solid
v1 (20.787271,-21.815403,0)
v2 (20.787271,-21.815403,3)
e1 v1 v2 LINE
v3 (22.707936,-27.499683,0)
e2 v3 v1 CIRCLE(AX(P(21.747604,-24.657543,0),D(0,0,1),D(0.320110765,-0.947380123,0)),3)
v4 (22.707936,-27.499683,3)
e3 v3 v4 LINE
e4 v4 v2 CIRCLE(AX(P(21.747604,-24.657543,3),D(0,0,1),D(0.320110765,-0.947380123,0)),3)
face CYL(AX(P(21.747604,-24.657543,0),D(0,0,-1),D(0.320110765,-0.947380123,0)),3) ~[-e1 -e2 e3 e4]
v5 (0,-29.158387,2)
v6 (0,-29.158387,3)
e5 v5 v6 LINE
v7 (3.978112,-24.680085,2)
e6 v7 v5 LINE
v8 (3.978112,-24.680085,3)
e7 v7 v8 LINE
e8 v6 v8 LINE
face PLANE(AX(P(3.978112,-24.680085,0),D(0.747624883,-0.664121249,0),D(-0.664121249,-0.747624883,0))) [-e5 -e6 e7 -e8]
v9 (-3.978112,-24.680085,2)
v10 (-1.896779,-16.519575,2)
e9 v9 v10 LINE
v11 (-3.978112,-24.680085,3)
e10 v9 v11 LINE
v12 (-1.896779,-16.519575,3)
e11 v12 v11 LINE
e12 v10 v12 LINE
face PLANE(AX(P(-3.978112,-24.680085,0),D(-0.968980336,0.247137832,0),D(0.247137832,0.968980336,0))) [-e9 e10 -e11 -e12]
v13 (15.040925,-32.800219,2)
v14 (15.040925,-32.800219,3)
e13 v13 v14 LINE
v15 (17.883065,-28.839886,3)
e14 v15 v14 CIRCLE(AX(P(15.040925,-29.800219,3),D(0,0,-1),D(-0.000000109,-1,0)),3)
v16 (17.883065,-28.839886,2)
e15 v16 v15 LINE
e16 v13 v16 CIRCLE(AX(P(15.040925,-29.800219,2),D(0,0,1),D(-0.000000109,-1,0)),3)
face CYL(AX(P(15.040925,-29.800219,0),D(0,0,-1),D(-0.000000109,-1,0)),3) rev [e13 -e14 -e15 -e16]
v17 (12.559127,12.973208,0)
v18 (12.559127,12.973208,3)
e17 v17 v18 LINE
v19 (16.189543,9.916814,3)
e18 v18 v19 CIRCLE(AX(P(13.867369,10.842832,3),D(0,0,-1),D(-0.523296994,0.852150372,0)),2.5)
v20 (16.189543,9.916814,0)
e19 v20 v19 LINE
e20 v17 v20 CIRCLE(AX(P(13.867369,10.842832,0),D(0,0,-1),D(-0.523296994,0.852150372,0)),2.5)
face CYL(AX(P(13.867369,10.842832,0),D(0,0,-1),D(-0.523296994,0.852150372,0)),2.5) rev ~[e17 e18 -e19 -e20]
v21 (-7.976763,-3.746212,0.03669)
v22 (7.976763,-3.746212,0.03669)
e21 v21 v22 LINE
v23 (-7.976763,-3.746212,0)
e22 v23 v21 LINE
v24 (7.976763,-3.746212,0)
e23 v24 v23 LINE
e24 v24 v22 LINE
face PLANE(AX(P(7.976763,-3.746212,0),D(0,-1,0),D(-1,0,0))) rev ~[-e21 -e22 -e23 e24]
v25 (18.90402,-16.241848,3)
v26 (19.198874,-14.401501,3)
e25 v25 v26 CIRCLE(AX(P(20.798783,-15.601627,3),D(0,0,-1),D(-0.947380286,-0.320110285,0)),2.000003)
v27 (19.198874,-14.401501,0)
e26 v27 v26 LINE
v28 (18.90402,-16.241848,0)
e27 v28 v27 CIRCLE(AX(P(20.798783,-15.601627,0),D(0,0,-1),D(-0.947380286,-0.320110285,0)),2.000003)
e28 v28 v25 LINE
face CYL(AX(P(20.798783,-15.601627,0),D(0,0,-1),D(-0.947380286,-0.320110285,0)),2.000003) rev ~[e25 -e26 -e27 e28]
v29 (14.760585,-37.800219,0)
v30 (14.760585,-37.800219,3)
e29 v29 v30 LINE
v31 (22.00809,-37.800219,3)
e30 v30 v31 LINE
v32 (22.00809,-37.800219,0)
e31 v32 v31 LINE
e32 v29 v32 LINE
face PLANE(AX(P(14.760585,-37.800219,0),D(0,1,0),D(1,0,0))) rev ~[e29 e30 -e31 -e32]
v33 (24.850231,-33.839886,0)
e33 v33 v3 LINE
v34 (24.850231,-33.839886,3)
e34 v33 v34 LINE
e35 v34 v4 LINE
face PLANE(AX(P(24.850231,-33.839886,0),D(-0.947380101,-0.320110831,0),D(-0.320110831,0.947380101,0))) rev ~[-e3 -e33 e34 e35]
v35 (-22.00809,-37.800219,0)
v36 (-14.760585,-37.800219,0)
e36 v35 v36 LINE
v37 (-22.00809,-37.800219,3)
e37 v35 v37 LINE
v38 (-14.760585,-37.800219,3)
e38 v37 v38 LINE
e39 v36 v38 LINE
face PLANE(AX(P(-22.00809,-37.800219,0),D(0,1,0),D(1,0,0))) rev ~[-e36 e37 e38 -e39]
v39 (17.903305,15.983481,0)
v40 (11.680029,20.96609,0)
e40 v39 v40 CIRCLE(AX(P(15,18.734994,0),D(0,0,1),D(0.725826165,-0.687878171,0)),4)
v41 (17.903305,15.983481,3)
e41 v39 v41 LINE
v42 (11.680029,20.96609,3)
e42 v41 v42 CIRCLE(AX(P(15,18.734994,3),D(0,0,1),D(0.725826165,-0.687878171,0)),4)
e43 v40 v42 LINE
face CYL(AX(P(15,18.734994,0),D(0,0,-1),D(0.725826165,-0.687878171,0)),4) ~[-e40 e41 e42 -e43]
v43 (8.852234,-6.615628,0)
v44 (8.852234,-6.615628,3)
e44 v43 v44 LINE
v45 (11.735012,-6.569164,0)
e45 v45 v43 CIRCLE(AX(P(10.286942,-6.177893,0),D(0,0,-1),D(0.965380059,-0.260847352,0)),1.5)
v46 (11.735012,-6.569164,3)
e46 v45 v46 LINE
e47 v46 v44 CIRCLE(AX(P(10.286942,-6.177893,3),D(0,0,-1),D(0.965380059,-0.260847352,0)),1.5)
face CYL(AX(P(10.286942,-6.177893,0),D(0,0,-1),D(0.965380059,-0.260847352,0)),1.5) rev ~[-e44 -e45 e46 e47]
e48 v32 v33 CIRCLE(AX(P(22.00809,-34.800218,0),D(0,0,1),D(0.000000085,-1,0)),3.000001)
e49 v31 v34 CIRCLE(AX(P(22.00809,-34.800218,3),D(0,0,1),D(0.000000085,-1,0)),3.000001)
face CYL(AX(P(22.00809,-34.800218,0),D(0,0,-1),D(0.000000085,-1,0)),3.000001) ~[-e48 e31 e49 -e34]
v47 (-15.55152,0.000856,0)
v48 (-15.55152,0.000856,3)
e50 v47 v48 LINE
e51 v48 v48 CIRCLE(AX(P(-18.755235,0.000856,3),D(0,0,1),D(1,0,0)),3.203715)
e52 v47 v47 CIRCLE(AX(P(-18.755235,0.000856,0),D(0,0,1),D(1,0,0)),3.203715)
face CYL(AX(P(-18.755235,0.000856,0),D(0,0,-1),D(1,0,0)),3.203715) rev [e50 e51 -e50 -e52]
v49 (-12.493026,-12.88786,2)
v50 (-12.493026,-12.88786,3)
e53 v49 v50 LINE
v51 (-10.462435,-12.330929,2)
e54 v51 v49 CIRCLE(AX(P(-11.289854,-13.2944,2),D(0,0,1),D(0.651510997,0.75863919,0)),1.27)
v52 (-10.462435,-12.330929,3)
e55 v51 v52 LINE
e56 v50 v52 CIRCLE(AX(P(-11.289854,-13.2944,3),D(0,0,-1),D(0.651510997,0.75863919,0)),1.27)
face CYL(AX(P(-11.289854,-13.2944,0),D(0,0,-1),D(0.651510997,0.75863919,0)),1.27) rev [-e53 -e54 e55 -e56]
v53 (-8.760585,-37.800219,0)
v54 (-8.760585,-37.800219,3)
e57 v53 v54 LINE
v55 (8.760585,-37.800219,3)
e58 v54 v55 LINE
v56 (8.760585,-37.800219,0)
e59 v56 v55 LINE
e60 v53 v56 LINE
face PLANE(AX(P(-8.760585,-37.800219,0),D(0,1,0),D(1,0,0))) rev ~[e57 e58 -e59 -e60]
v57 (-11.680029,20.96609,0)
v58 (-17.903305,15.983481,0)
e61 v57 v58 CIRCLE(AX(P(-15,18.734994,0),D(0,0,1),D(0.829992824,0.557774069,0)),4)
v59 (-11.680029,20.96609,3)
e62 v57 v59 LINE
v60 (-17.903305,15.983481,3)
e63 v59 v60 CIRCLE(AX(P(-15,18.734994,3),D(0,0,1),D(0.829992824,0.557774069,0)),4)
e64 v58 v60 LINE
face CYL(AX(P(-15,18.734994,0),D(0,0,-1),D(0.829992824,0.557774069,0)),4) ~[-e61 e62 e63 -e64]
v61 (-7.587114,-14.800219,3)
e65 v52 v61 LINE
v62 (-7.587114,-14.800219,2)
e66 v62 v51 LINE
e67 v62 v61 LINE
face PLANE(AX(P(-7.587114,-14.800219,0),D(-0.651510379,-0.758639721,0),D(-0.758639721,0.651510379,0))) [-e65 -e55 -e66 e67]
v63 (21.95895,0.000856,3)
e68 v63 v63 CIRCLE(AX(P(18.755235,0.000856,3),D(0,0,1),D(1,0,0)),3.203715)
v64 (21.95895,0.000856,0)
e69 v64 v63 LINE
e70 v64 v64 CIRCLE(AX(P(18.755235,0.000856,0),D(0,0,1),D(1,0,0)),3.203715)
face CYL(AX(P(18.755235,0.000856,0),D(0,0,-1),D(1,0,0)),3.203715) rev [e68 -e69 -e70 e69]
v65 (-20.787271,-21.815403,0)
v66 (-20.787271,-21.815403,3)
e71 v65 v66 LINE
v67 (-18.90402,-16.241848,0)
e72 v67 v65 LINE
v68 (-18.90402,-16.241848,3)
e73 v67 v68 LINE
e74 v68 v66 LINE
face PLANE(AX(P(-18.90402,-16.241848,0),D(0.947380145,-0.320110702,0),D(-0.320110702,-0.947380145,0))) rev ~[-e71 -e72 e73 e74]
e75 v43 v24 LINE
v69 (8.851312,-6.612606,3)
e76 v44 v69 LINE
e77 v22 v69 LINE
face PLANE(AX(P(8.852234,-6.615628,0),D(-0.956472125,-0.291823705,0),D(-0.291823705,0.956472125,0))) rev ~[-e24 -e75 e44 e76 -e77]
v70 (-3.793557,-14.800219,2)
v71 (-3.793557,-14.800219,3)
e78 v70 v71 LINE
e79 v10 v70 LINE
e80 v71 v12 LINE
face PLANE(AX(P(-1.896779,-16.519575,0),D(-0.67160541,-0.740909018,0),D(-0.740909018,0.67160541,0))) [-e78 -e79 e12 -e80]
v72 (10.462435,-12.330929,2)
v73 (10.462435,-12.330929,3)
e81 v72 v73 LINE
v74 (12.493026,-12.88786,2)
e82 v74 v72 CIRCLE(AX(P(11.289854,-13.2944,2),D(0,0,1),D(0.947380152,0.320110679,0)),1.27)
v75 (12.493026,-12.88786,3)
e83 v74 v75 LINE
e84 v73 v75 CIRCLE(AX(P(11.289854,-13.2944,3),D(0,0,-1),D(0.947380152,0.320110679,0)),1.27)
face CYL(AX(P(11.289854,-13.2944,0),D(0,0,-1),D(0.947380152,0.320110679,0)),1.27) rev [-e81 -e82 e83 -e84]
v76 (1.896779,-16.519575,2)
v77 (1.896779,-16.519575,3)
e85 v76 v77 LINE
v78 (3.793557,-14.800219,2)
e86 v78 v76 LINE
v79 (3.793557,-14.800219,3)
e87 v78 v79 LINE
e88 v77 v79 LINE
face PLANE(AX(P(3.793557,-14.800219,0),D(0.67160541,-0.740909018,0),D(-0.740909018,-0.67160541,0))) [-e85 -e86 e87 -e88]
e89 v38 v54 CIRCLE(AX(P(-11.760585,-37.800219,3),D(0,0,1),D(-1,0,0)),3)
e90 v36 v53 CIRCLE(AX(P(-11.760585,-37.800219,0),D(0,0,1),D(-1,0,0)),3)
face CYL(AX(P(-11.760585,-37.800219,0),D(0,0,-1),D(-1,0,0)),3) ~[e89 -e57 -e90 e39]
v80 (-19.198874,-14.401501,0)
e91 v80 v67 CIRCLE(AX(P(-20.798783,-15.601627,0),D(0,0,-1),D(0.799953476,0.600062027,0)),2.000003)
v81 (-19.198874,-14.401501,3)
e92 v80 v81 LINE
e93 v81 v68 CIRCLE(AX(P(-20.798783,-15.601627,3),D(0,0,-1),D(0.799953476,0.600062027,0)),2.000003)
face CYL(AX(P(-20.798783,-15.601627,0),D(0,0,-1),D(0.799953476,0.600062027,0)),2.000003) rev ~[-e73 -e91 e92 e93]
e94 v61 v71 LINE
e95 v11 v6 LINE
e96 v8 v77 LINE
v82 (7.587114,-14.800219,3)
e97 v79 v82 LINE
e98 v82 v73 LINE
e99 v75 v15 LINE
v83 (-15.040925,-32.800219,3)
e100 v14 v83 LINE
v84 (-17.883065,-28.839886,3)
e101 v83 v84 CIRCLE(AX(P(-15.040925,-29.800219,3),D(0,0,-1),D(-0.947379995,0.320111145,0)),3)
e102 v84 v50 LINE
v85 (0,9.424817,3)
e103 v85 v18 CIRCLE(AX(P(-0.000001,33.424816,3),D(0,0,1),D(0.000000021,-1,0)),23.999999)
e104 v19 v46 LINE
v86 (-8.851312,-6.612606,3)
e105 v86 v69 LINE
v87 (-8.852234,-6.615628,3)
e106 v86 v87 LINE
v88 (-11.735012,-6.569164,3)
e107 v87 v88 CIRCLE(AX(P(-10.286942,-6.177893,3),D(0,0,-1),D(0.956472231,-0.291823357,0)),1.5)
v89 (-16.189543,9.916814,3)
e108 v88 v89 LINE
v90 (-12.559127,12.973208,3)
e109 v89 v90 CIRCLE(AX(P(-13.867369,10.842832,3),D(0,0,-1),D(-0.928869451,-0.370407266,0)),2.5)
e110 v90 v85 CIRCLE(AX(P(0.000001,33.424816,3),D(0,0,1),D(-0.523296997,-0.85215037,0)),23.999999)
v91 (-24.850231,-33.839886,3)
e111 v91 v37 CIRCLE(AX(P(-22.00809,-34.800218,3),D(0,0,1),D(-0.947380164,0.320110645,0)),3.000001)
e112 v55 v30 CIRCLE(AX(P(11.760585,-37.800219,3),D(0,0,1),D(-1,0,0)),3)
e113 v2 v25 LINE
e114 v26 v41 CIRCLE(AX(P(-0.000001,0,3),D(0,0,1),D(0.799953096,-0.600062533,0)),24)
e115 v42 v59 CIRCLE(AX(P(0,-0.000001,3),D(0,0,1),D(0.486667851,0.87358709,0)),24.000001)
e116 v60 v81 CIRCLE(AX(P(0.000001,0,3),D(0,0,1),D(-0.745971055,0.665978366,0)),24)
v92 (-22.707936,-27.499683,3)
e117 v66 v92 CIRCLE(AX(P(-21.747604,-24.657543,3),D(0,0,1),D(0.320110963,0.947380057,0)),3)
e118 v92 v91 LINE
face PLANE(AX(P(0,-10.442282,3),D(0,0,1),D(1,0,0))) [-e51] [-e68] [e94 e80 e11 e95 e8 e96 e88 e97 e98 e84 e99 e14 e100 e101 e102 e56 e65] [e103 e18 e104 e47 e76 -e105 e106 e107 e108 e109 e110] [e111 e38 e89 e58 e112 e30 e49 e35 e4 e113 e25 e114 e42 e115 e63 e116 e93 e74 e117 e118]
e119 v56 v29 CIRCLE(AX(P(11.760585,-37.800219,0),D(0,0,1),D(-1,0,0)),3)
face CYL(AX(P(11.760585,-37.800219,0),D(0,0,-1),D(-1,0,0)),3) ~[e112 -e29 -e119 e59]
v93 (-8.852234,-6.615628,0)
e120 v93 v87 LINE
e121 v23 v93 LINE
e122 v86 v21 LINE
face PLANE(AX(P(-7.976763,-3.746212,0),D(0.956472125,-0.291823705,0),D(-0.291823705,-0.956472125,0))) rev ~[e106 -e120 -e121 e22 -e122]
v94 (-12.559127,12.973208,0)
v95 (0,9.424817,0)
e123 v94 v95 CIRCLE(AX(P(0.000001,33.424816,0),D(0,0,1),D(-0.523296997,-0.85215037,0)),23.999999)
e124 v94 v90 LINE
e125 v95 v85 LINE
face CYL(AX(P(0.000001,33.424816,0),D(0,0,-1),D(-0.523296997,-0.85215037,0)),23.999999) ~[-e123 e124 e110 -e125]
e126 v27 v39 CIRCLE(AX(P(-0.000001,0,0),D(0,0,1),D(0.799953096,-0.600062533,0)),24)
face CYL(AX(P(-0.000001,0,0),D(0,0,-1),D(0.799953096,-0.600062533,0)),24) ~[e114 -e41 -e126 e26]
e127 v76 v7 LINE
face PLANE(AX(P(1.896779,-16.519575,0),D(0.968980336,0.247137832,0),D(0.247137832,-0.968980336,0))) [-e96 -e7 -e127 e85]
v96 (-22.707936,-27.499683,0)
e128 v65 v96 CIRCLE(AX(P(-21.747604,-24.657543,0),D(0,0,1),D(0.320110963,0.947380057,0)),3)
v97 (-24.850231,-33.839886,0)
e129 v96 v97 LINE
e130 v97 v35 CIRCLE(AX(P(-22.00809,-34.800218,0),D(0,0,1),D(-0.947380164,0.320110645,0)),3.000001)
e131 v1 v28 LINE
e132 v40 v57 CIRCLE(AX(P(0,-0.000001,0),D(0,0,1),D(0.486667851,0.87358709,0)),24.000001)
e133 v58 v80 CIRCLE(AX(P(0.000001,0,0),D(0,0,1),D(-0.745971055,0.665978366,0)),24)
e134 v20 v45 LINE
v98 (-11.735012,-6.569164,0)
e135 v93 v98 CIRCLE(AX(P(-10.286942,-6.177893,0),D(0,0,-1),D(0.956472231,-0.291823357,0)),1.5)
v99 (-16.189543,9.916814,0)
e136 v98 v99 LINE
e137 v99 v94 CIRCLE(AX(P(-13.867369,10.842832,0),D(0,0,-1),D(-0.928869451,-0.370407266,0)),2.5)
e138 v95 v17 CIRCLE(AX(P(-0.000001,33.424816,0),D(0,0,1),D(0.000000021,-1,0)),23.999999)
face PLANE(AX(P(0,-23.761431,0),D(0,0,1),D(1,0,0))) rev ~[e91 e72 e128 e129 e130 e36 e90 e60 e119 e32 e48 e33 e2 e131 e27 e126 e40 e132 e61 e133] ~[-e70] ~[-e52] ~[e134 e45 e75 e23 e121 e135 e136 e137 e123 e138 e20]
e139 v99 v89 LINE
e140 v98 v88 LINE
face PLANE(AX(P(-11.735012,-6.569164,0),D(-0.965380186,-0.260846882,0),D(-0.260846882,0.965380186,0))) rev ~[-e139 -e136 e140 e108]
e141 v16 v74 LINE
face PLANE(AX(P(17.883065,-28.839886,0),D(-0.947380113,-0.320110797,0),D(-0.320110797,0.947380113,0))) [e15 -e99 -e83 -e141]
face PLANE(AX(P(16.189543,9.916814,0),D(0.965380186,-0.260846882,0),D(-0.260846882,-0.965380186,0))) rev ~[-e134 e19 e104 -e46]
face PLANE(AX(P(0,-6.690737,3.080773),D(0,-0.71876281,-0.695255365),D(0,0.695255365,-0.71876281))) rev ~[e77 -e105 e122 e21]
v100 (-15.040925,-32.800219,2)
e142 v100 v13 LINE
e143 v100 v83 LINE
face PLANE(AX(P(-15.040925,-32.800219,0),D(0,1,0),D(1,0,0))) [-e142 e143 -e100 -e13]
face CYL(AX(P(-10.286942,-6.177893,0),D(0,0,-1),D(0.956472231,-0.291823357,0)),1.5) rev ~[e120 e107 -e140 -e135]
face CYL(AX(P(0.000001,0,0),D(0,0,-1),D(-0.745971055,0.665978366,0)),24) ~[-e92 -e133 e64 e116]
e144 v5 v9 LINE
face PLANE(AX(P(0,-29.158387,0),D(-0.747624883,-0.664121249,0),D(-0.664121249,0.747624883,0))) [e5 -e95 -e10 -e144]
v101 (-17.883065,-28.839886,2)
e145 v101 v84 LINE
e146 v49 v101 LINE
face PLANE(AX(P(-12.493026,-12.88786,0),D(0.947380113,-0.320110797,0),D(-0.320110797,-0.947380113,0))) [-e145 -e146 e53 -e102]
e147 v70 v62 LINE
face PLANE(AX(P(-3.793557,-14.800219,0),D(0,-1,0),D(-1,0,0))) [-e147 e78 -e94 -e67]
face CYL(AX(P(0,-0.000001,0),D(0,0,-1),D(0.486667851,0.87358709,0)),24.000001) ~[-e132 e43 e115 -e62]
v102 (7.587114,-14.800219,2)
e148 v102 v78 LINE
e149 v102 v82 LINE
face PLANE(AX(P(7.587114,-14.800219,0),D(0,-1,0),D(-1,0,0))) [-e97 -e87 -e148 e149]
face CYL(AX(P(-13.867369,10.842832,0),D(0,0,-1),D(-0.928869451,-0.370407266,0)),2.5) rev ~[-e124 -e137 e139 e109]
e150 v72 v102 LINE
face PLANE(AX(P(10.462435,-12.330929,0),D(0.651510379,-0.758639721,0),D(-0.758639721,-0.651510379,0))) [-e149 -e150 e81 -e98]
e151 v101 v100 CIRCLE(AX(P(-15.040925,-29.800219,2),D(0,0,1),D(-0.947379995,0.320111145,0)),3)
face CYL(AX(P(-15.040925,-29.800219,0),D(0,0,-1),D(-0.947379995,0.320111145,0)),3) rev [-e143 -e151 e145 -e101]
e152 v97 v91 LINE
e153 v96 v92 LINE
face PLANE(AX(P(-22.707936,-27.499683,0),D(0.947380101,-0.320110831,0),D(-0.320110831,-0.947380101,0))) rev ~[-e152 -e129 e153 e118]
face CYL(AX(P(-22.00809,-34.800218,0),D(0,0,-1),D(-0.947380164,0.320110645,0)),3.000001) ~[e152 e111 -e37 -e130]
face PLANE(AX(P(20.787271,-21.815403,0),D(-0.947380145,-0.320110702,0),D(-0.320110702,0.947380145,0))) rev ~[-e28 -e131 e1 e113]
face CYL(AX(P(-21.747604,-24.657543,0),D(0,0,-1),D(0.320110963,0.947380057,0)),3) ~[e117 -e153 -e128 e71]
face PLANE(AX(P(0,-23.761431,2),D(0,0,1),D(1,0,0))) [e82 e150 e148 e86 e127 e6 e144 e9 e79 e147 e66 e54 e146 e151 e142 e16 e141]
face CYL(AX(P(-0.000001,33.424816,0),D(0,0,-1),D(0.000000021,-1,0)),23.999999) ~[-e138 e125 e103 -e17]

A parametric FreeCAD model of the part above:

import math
import FreeCAD as App
import Part
import Sketcher
from FreeCAD import Vector

doc = App.newDocument("Part")
body = doc.addObject("PartDesign::Body", "Body")

sketch1 = body.newObject("Sketcher::SketchObject", "Sketch")
sketch1.AttachmentSupport = (doc.getObject("XY_Plane"), [""])
sketch1.MapMode = "FlatFace"
sketch1.addGeometry(Part.ArcOfCircle(Part.Circle(Vector(-15, 18.7, 0), Vector(0, 0, 1), 4), math.radians(34), math.radians(223)), False)
sketch1.addGeometry(Part.ArcOfCircle(Part.Circle(Vector(0, 0, 0), Vector(0, 0, 1), 24), math.radians(138), math.radians(217)), False)
sketch1.addGeometry(Part.ArcOfCircle(Part.Circle(Vector(-20.8, -15.6, 0), Vector(0, 0, 1), 2), math.radians(-19), math.radians(37)), False)
sketch1.addGeometry(Part.LineSegment(Vector(-18.9, -16.2, 0), Vector(-20.8, -21.8, 0)), False)
sketch1.addGeometry(Part.ArcOfCircle(Part.Circle(Vector(-21.7, -24.7, 0), Vector(0, 0, 1), 3), math.radians(71), math.radians(251)), False)
sketch1.addGeometry(Part.LineSegment(Vector(-22.7, -27.5, 0), Vector(-24.9, -33.8, 0)), False)
sketch1.addGeometry(Part.ArcOfCircle(Part.Circle(Vector(-22, -34.8, 0), Vector(0, 0, 1), 3), math.radians(161), math.radians(270)), False)
sketch1.addGeometry(Part.LineSegment(Vector(-22, -37.8, 0), Vector(-14.8, -37.8, 0)), False)
sketch1.addGeometry(Part.ArcOfCircle(Part.Circle(Vector(-11.8, -37.8, 0), Vector(0, 0, 1), 3), math.radians(180), math.radians(360)), False)
sketch1.addGeometry(Part.LineSegment(Vector(-8.8, -37.8, 0), Vector(8.8, -37.8, 0)), False)
sketch1.addGeometry(Part.ArcOfCircle(Part.Circle(Vector(11.8, -37.8, 0), Vector(0, 0, 1), 3), math.radians(180), math.radians(360)), False)
sketch1.addGeometry(Part.LineSegment(Vector(14.8, -37.8, 0), Vector(22, -37.8, 0)), False)
sketch1.addGeometry(Part.ArcOfCircle(Part.Circle(Vector(22, -34.8, 0), Vector(0, 0, 1), 3), math.radians(-90), math.radians(19)), False)
sketch1.addGeometry(Part.LineSegment(Vector(24.9, -33.8, 0), Vector(22.7, -27.5, 0)), False)
sketch1.addGeometry(Part.ArcOfCircle(Part.Circle(Vector(21.7, -24.7, 0), Vector(0, 0, 1), 3), math.radians(-71), math.radians(109)), False)
sketch1.addGeometry(Part.LineSegment(Vector(20.8, -21.8, 0), Vector(18.9, -16.2, 0)), False)
sketch1.addGeometry(Part.ArcOfCircle(Part.Circle(Vector(20.8, -15.6, 0), Vector(0, 0, 1), 2), math.radians(143), math.radians(199)), False)
sketch1.addGeometry(Part.ArcOfCircle(Part.Circle(Vector(0, 0, 0), Vector(0, 0, 1), 24), math.radians(-37), math.radians(42)), False)
sketch1.addGeometry(Part.ArcOfCircle(Part.Circle(Vector(15, 18.7, 0), Vector(0, 0, 1), 4), math.radians(-43), math.radians(146)), False)
sketch1.addGeometry(Part.ArcOfCircle(Part.Circle(Vector(0, 0, 0), Vector(0, 0, 1), 24), math.radians(61), math.radians(119)), False)
sketch1.addGeometry(Part.Circle(Vector(-18.8, 0, 0), Vector(0, 0, 1), 3.2), False)
sketch1.addGeometry(Part.Circle(Vector(18.8, 0, 0), Vector(0, 0, 1), 3.2), False)
sketch1.addGeometry(Part.ArcOfCircle(Part.Circle(Vector(0, 33.4, 0), Vector(0, 0, 1), 24), math.radians(-122), math.radians(-90)), False)
sketch1.addGeometry(Part.ArcOfCircle(Part.Circle(Vector(0, 33.4, 0), Vector(0, 0, 1), 24), math.radians(-90), math.radians(-58)), False)
sketch1.addGeometry(Part.ArcOfCircle(Part.Circle(Vector(13.9, 10.8, 0), Vector(0, 0, 1), 2.5), math.radians(-22), math.radians(122)), False)
sketch1.addGeometry(Part.LineSegment(Vector(16.2, 9.9, 0), Vector(11.7, -6.6, 0)), False)
sketch1.addGeometry(Part.ArcOfCircle(Part.Circle(Vector(10.3, -6.2, 0), Vector(0, 0, 1), 1.5), math.radians(-163), math.radians(-15)), False)
sketch1.addGeometry(Part.LineSegment(Vector(8.9, -6.6, 0), Vector(8, -3.7, 0)), False)
sketch1.addGeometry(Part.LineSegment(Vector(8, -3.7, 0), Vector(-8, -3.7, 0)), False)
sketch1.addGeometry(Part.LineSegment(Vector(-8, -3.7, 0), Vector(-8.9, -6.6, 0)), False)
sketch1.addGeometry(Part.ArcOfCircle(Part.Circle(Vector(-10.3, -6.2, 0), Vector(0, 0, 1), 1.5), math.radians(-165), math.radians(-17)), False)
sketch1.addGeometry(Part.LineSegment(Vector(-11.7, -6.6, 0), Vector(-16.2, 9.9, 0)), False)
sketch1.addGeometry(Part.ArcOfCircle(Part.Circle(Vector(-13.9, 10.8, 0), Vector(0, 0, 1), 2.5), math.radians(58), math.radians(202)), False)
sketch1.addConstraint(Sketcher.Constraint("Coincident", 0, 2, 1, 1))
sketch1.addConstraint(Sketcher.Constraint("Tangent", 1, 2, 2, 2))
sketch1.addConstraint(Sketcher.Constraint("Tangent", 2, 1, 3, 1))
sketch1.addConstraint(Sketcher.Constraint("Coincident", 3, 2, 4, 1))
sketch1.addConstraint(Sketcher.Constraint("Coincident", 4, 2, 5, 1))
sketch1.addConstraint(Sketcher.Constraint("Tangent", 5, 2, 6, 1))
sketch1.addConstraint(Sketcher.Constraint("Tangent", 6, 2, 7, 1))
sketch1.addConstraint(Sketcher.Constraint("Coincident", 7, 2, 8, 1))
sketch1.addConstraint(Sketcher.Constraint("Coincident", 8, 2, 9, 1))
sketch1.addConstraint(Sketcher.Constraint("Coincident", 9, 2, 10, 1))
sketch1.addConstraint(Sketcher.Constraint("Coincident", 10, 2, 11, 1))
sketch1.addConstraint(Sketcher.Constraint("Tangent", 11, 2, 12, 1))
sketch1.addConstraint(Sketcher.Constraint("Tangent", 12, 2, 13, 1))
sketch1.addConstraint(Sketcher.Constraint("Coincident", 13, 2, 14, 1))
sketch1.addConstraint(Sketcher.Constraint("Coincident", 14, 2, 15, 1))
sketch1.addConstraint(Sketcher.Constraint("Tangent", 15, 2, 16, 2))
sketch1.addConstraint(Sketcher.Constraint("Tangent", 16, 1, 17, 1))
sketch1.addConstraint(Sketcher.Constraint("Coincident", 17, 2, 18, 1))
sketch1.addConstraint(Sketcher.Constraint("Coincident", 18, 2, 19, 1))
sketch1.addConstraint(Sketcher.Constraint("Coincident", 19, 2, 0, 1))
sketch1.addConstraint(Sketcher.Constraint("Tangent", 22, 2, 23, 1))
sketch1.addConstraint(Sketcher.Constraint("Tangent", 23, 2, 24, 2))
sketch1.addConstraint(Sketcher.Constraint("Coincident", 24, 1, 25, 1))
sketch1.addConstraint(Sketcher.Constraint("Tangent", 25, 2, 26, 2))
sketch1.addConstraint(Sketcher.Constraint("Tangent", 26, 1, 27, 1))
sketch1.addConstraint(Sketcher.Constraint("Coincident", 27, 2, 28, 1))
sketch1.addConstraint(Sketcher.Constraint("Coincident", 28, 2, 29, 1))
sketch1.addConstraint(Sketcher.Constraint("Tangent", 29, 2, 30, 2))
sketch1.addConstraint(Sketcher.Constraint("Tangent", 30, 1, 31, 1))
sketch1.addConstraint(Sketcher.Constraint("Coincident", 31, 2, 32, 2))
sketch1.addConstraint(Sketcher.Constraint("Tangent", 32, 1, 22, 1))
sketch1.addConstraint(Sketcher.Constraint("Horizontal", 7))
sketch1.addConstraint(Sketcher.Constraint("Horizontal", 9))
sketch1.addConstraint(Sketcher.Constraint("Horizontal", 11))
sketch1.addConstraint(Sketcher.Constraint("Horizontal", 28))
sketch1.addConstraint(Sketcher.Constraint("Coincident", 1, 3, -1, 1))
sketch1.addConstraint(Sketcher.Constraint("Coincident", 17, 3, -1, 1))
sketch1.addConstraint(Sketcher.Constraint("Coincident", 19, 3, -1, 1))
sketch1.addConstraint(Sketcher.Constraint("Equal", 4, 6))
sketch1.addConstraint(Sketcher.Constraint("Equal", 6, 8))
sketch1.addConstraint(Sketcher.Constraint("Equal", 8, 10))
sketch1.addConstraint(Sketcher.Constraint("Equal", 10, 12))
sketch1.addConstraint(Sketcher.Constraint("Equal", 12, 14))
sketch1.addConstraint(Sketcher.Constraint("Equal", 2, 16))
sketch1.addConstraint(Sketcher.Constraint("Equal", 1, 17))
sketch1.addConstraint(Sketcher.Constraint("Equal", 0, 18))
sketch1.addConstraint(Sketcher.Constraint("Equal", 17, 19))
sketch1.addConstraint(Sketcher.Constraint("Equal", 20, 21))
sketch1.addConstraint(Sketcher.Constraint("Equal", 17, 22))
sketch1.addConstraint(Sketcher.Constraint("Equal", 22, 23))
sketch1.addConstraint(Sketcher.Constraint("Equal", 26, 30))
sketch1.addConstraint(Sketcher.Constraint("Equal", 24, 32))
sketch1.addConstraint(Sketcher.Constraint("Symmetric", 8, 3, 10, 3, -2))
sketch1.addConstraint(Sketcher.Constraint("Symmetric", 6, 3, 12, 3, -2))
sketch1.addConstraint(Sketcher.Constraint("Symmetric", 4, 3, 14, 3, -2))
sketch1.addConstraint(Sketcher.Constraint("Symmetric", 0, 3, 18, 3, -2))
sketch1.addConstraint(Sketcher.Constraint("Symmetric", 20, 3, 21, 3, -2))
sketch1.addConstraint(Sketcher.Constraint("Symmetric", 26, 3, 30, 3, -2))
sketch1.addConstraint(Sketcher.Constraint("Symmetric", 24, 3, 32, 3, -2))
sketch1.addConstraint(Sketcher.Constraint("Symmetric", 2, 1, 15, 2, -2))
sketch1.addConstraint(Sketcher.Constraint("PointOnObject", 22, 2, -2))
sketch1.addConstraint(Sketcher.Constraint("Parallel", 3, 5))
sketch1.addConstraint(Sketcher.Constraint("Parallel", 13, 15))
sketch1.addConstraint(Sketcher.Constraint("Horizontal", 10, 3, 6, 2))
sketch1.addConstraint(Sketcher.Constraint("Horizontal", 7, 2, 8, 2))
sketch1.addConstraint(Sketcher.Constraint("Horizontal", 26, 1, 29, 2))
sketch1.addConstraint(Sketcher.Constraint("Horizontal", 25, 2, 30, 1))
sketch1.addConstraint(Sketcher.Constraint("Radius", 0, 4.0))
sketch1.addConstraint(Sketcher.Constraint("Radius", 1, 24.0))
sketch1.addConstraint(Sketcher.Constraint("Radius", 4, 3.0))
sketch1.addConstraint(Sketcher.Constraint("Radius", 24, 2.5))
sketch1.addConstraint(Sketcher.Constraint("Radius", 26, 1.5))
sketch1.addConstraint(Sketcher.Constraint("Distance", 27, 3.0))
sketch1.addConstraint(Sketcher.Constraint("DistanceX", 0, 3, -1, 1, 15.0))
sketch1.addConstraint(Sketcher.Constraint("Diameter", 20, 6.40743))
sketch1.addConstraint(Sketcher.Constraint("Radius", 2, 2.000003))
sketch1.addConstraint(Sketcher.Constraint("DistanceX", 9, 1, 9, 2, 17.52117))
sketch1.addConstraint(Sketcher.Constraint("DistanceY", 1, 2, -1, 1, 14.401501))
sketch1.addConstraint(Sketcher.Constraint("DistanceY", 3, 2, 1, 2, 7.413902))
sketch1.addConstraint(Sketcher.Constraint("DistanceX", 18, 2, 23, 2, 0.879098))
sketch1.addConstraint(Sketcher.Constraint("DistanceX", 7, 1, 7, 2, 7.247505))
sketch1.addConstraint(Sketcher.Constraint("DistanceX", 28, 2, 28, 1, 15.953526))
sketch1.addConstraint(Sketcher.Constraint("DistanceY", 6, 3, -1, 1, 34.800218))
sketch1.addConstraint(Sketcher.Constraint("DistanceX", -1, 1, 24, 3, 13.867369))
sketch1.addConstraint(Sketcher.Constraint("DistanceX", 2, 1, -1, 1, 18.90402))
sketch1.addConstraint(Sketcher.Constraint("DistanceY", -1, 1, 23, 2, 12.973208))
sketch1.addConstraint(Sketcher.Constraint("DistanceX", -1, 1, 25, 2, 11.735012))
sketch1.addConstraint(Sketcher.Constraint("DistanceY", 27, 2, -1, 1, 3.746212))
sketch1.addConstraint(Sketcher.Constraint("DistanceX", 4, 3, 2, 3, 0.948821))
sketch1.addConstraint(Sketcher.Constraint("DistanceX", 2, 3, 20, 3, 2.043548))
sketch1.addConstraint(Sketcher.Constraint("DistanceY", 26, 3, 21, 3, 6.178749))
sketch1.addConstraint(Sketcher.Constraint("DistanceY", 24, 1, 24, 3, 0.926018))
pad1 = body.newObject("PartDesign::Pad", "Pad")
pad1.Profile = sketch1
pad1.Length = 3

sketch2 = body.newObject("Sketcher::SketchObject", "Sketch001")
sketch2.AttachmentSupport = (doc.getObject("XY_Plane"), [""])
sketch2.MapMode = "FlatFace"
sketch2.addGeometry(Part.ArcOfCircle(Part.Circle(Vector(-15, -29.8, 0), Vector(0, 0, 1), 3), math.radians(161), math.radians(270)), False)
sketch2.addGeometry(Part.LineSegment(Vector(-15, -32.8, 0), Vector(15, -32.8, 0)), False)
sketch2.addGeometry(Part.ArcOfCircle(Part.Circle(Vector(15, -29.8, 0), Vector(0, 0, 1), 3), math.radians(-90), math.radians(19)), False)
sketch2.addGeometry(Part.LineSegment(Vector(17.9, -28.8, 0), Vector(12.5, -12.9, 0)), False)
sketch2.addGeometry(Part.ArcOfCircle(Part.Circle(Vector(11.3, -13.3, 0), Vector(0, 0, 1), 1.3), math.radians(19), math.radians(131)), False)
sketch2.addGeometry(Part.LineSegment(Vector(10.5, -12.3, 0), Vector(7.6, -14.8, 0)), False)
sketch2.addGeometry(Part.LineSegment(Vector(7.6, -14.8, 0), Vector(3.8, -14.8, 0)), False)
sketch2.addGeometry(Part.LineSegment(Vector(3.8, -14.8, 0), Vector(1.9, -16.5, 0)), False)
sketch2.addGeometry(Part.LineSegment(Vector(1.9, -16.5, 0), Vector(4, -24.7, 0)), False)
sketch2.addGeometry(Part.LineSegment(Vector(4, -24.7, 0), Vector(0, -29.2, 0)), False)
sketch2.addGeometry(Part.LineSegment(Vector(0, -29.2, 0), Vector(-4, -24.7, 0)), False)
sketch2.addGeometry(Part.LineSegment(Vector(-4, -24.7, 0), Vector(-1.9, -16.5, 0)), False)
sketch2.addGeometry(Part.LineSegment(Vector(-1.9, -16.5, 0), Vector(-3.8, -14.8, 0)), False)
sketch2.addGeometry(Part.LineSegment(Vector(-3.8, -14.8, 0), Vector(-7.6, -14.8, 0)), False)
sketch2.addGeometry(Part.LineSegment(Vector(-7.6, -14.8, 0), Vector(-10.5, -12.3, 0)), False)
sketch2.addGeometry(Part.ArcOfCircle(Part.Circle(Vector(-11.3, -13.3, 0), Vector(0, 0, 1), 1.3), math.radians(49), math.radians(161)), False)
sketch2.addGeometry(Part.LineSegment(Vector(-12.5, -12.9, 0), Vector(-17.9, -28.8, 0)), False)
sketch2.addConstraint(Sketcher.Constraint("Tangent", 0, 2, 1, 1))
sketch2.addConstraint(Sketcher.Constraint("Tangent", 1, 2, 2, 1))
sketch2.addConstraint(Sketcher.Constraint("Tangent", 2, 2, 3, 1))
sketch2.addConstraint(Sketcher.Constraint("Tangent", 3, 2, 4, 1))
sketch2.addConstraint(Sketcher.Constraint("Tangent", 4, 2, 5, 1))
sketch2.addConstraint(Sketcher.Constraint("Coincident", 5, 2, 6, 1))
sketch2.addConstraint(Sketcher.Constraint("Coincident", 6, 2, 7, 1))
sketch2.addConstraint(Sketcher.Constraint("Coincident", 7, 2, 8, 1))
sketch2.addConstraint(Sketcher.Constraint("Coincident", 8, 2, 9, 1))
sketch2.addConstraint(Sketcher.Constraint("Coincident", 9, 2, 10, 1))
sketch2.addConstraint(Sketcher.Constraint("Coincident", 10, 2, 11, 1))
sketch2.addConstraint(Sketcher.Constraint("Coincident", 11, 2, 12, 1))
sketch2.addConstraint(Sketcher.Constraint("Coincident", 12, 2, 13, 1))
sketch2.addConstraint(Sketcher.Constraint("Coincident", 13, 2, 14, 1))
sketch2.addConstraint(Sketcher.Constraint("Tangent", 14, 2, 15, 1))
sketch2.addConstraint(Sketcher.Constraint("Tangent", 15, 2, 16, 1))
sketch2.addConstraint(Sketcher.Constraint("Tangent", 16, 2, 0, 1))
sketch2.addConstraint(Sketcher.Constraint("Horizontal", 1))
sketch2.addConstraint(Sketcher.Constraint("Horizontal", 6))
sketch2.addConstraint(Sketcher.Constraint("Horizontal", 13))
sketch2.addConstraint(Sketcher.Constraint("Equal", 0, 2))
sketch2.addConstraint(Sketcher.Constraint("Equal", 4, 15))
sketch2.addConstraint(Sketcher.Constraint("Symmetric", 4, 3, 15, 3, -2))
sketch2.addConstraint(Sketcher.Constraint("Symmetric", 8, 2, 10, 2, -2))
sketch2.addConstraint(Sketcher.Constraint("Symmetric", 7, 2, 11, 2, -2))
sketch2.addConstraint(Sketcher.Constraint("Symmetric", 6, 2, 12, 2, -2))
sketch2.addConstraint(Sketcher.Constraint("PointOnObject", 9, 2, -2))
sketch2.addConstraint(Sketcher.Constraint("Horizontal", 4, 2, 14, 2))
sketch2.addConstraint(Sketcher.Constraint("Horizontal", 3, 2, 15, 2))
sketch2.addConstraint(Sketcher.Constraint("Radius", 0, 3.0))
sketch2.addConstraint(Sketcher.Constraint("Radius", 4, 1.27))
sketch2.addConstraint(Sketcher.Constraint("DistanceY", 2, 3, 5, 2, 15.0))
sketch2.addConstraint(Sketcher.Constraint("DistanceX", 8, 2, 5, 2, 3.609002))
sketch2.addConstraint(Sketcher.Constraint("Distance", 5, 3.790101))
sketch2.addConstraint(Sketcher.Constraint("DistanceX", 1, 1, 1, 2, 30.08185))
sketch2.addConstraint(Sketcher.Constraint("DistanceY", 4, 3, -1, 1, 13.2944))
sketch2.addConstraint(Sketcher.Constraint("DistanceX", 3, 2, 2, 3, 2.547899))
sketch2.addConstraint(Sketcher.Constraint("DistanceY", 16, 2, 10, 2, 4.159801))
sketch2.addConstraint(Sketcher.Constraint("Distance", 3, 16.838042))
sketch2.addConstraint(Sketcher.Constraint("Distance", 7, 2.560069))
sketch2.addConstraint(Sketcher.Constraint("Distance", 8, 8.42175))
sketch2.addConstraint(Sketcher.Constraint("Distance", 9, 5.990039))
sketch2.addConstraint(Sketcher.Constraint("DistanceX", 6, 2, 6, 1, 3.793557))
pocket1 = body.newObject("PartDesign::Pocket", "Pocket")
pocket1.Profile = sketch2
pocket1.Length = 25.4
pocket1.Reversed = True

sketch3 = body.newObject("Sketcher::SketchObject", "Sketch002")
sketch3.AttachmentSupport = (doc.getObject("XY_Plane"), [""])
sketch3.MapMode = "FlatFace"
sketch3.addGeometry(Part.ArcOfCircle(Part.Circle(Vector(-15, -29.8, 0), Vector(0, 0, 1), 3), math.radians(161), math.radians(270)), False)
sketch3.addGeometry(Part.LineSegment(Vector(-15, -32.8, 0), Vector(15, -32.8, 0)), False)
sketch3.addGeometry(Part.ArcOfCircle(Part.Circle(Vector(15, -29.8, 0), Vector(0, 0, 1), 3), math.radians(-90), math.radians(19)), False)
sketch3.addGeometry(Part.LineSegment(Vector(17.9, -28.8, 0), Vector(12.5, -12.9, 0)), False)
sketch3.addGeometry(Part.ArcOfCircle(Part.Circle(Vector(11.3, -13.3, 0), Vector(0, 0, 1), 1.3), math.radians(19), math.radians(131)), False)
sketch3.addGeometry(Part.LineSegment(Vector(10.5, -12.3, 0), Vector(7.6, -14.8, 0)), False)
sketch3.addGeometry(Part.LineSegment(Vector(7.6, -14.8, 0), Vector(3.8, -14.8, 0)), False)
sketch3.addGeometry(Part.LineSegment(Vector(3.8, -14.8, 0), Vector(1.9, -16.5, 0)), False)
sketch3.addGeometry(Part.LineSegment(Vector(1.9, -16.5, 0), Vector(4, -24.7, 0)), False)
sketch3.addGeometry(Part.LineSegment(Vector(4, -24.7, 0), Vector(0, -29.2, 0)), False)
sketch3.addGeometry(Part.LineSegment(Vector(0, -29.2, 0), Vector(-4, -24.7, 0)), False)
sketch3.addGeometry(Part.LineSegment(Vector(-4, -24.7, 0), Vector(-1.9, -16.5, 0)), False)
sketch3.addGeometry(Part.LineSegment(Vector(-1.9, -16.5, 0), Vector(-3.8, -14.8, 0)), False)
sketch3.addGeometry(Part.LineSegment(Vector(-3.8, -14.8, 0), Vector(-7.6, -14.8, 0)), False)
sketch3.addGeometry(Part.LineSegment(Vector(-7.6, -14.8, 0), Vector(-10.5, -12.3, 0)), False)
sketch3.addGeometry(Part.ArcOfCircle(Part.Circle(Vector(-11.3, -13.3, 0), Vector(0, 0, 1), 1.3), math.radians(49), math.radians(161)), False)
sketch3.addGeometry(Part.LineSegment(Vector(-12.5, -12.9, 0), Vector(-17.9, -28.8, 0)), False)
sketch3.addConstraint(Sketcher.Constraint("Tangent", 0, 2, 1, 1))
sketch3.addConstraint(Sketcher.Constraint("Tangent", 1, 2, 2, 1))
sketch3.addConstraint(Sketcher.Constraint("Tangent", 2, 2, 3, 1))
sketch3.addConstraint(Sketcher.Constraint("Tangent", 3, 2, 4, 1))
sketch3.addConstraint(Sketcher.Constraint("Tangent", 4, 2, 5, 1))
sketch3.addConstraint(Sketcher.Constraint("Coincident", 5, 2, 6, 1))
sketch3.addConstraint(Sketcher.Constraint("Coincident", 6, 2, 7, 1))
sketch3.addConstraint(Sketcher.Constraint("Coincident", 7, 2, 8, 1))
sketch3.addConstraint(Sketcher.Constraint("Coincident", 8, 2, 9, 1))
sketch3.addConstraint(Sketcher.Constraint("Coincident", 9, 2, 10, 1))
sketch3.addConstraint(Sketcher.Constraint("Coincident", 10, 2, 11, 1))
sketch3.addConstraint(Sketcher.Constraint("Coincident", 11, 2, 12, 1))
sketch3.addConstraint(Sketcher.Constraint("Coincident", 12, 2, 13, 1))
sketch3.addConstraint(Sketcher.Constraint("Coincident", 13, 2, 14, 1))
sketch3.addConstraint(Sketcher.Constraint("Tangent", 14, 2, 15, 1))
sketch3.addConstraint(Sketcher.Constraint("Tangent", 15, 2, 16, 1))
sketch3.addConstraint(Sketcher.Constraint("Tangent", 16, 2, 0, 1))
sketch3.addConstraint(Sketcher.Constraint("Horizontal", 1))
sketch3.addConstraint(Sketcher.Constraint("Horizontal", 6))
sketch3.addConstraint(Sketcher.Constraint("Horizontal", 13))
sketch3.addConstraint(Sketcher.Constraint("Equal", 0, 2))
sketch3.addConstraint(Sketcher.Constraint("Equal", 4, 15))
sketch3.addConstraint(Sketcher.Constraint("Symmetric", 4, 3, 15, 3, -2))
sketch3.addConstraint(Sketcher.Constraint("Symmetric", 8, 2, 10, 2, -2))
sketch3.addConstraint(Sketcher.Constraint("Symmetric", 7, 2, 11, 2, -2))
sketch3.addConstraint(Sketcher.Constraint("Symmetric", 6, 2, 12, 2, -2))
sketch3.addConstraint(Sketcher.Constraint("PointOnObject", 9, 2, -2))
sketch3.addConstraint(Sketcher.Constraint("Horizontal", 4, 2, 14, 2))
sketch3.addConstraint(Sketcher.Constraint("Horizontal", 3, 2, 15, 2))
sketch3.addConstraint(Sketcher.Constraint("Radius", 0, 3.0))
sketch3.addConstraint(Sketcher.Constraint("Radius", 4, 1.27))
sketch3.addConstraint(Sketcher.Constraint("DistanceY", 2, 3, 5, 2, 15.0))
sketch3.addConstraint(Sketcher.Constraint("DistanceX", 8, 2, 5, 2, 3.609002))
sketch3.addConstraint(Sketcher.Constraint("Distance", 5, 3.790101))
sketch3.addConstraint(Sketcher.Constraint("DistanceX", 1, 1, 1, 2, 30.08185))
sketch3.addConstraint(Sketcher.Constraint("DistanceY", 4, 3, -1, 1, 13.2944))
sketch3.addConstraint(Sketcher.Constraint("DistanceX", 3, 2, 2, 3, 2.547899))
sketch3.addConstraint(Sketcher.Constraint("DistanceY", 16, 2, 10, 2, 4.159801))
sketch3.addConstraint(Sketcher.Constraint("Distance", 3, 16.838042))
sketch3.addConstraint(Sketcher.Constraint("Distance", 7, 2.560069))
sketch3.addConstraint(Sketcher.Constraint("Distance", 8, 8.42175))
sketch3.addConstraint(Sketcher.Constraint("Distance", 9, 5.990039))
sketch3.addConstraint(Sketcher.Constraint("DistanceX", 6, 2, 6, 1, 3.793557))
pad2 = body.newObject("PartDesign::Pad", "Pad001")
pad2.Profile = sketch3
pad2.Length = 2

sketch4 = body.newObject("Sketcher::SketchObject", "Sketch003")
sketch4.AttachmentSupport = (doc.getObject("YZ_Plane"), [""])
sketch4.MapMode = "FlatFace"
sketch4.addGeometry(Part.LineSegment(Vector(-3.7, 3.1, 0), Vector(-6.7, 3.1, 0)), False)
sketch4.addGeometry(Part.LineSegment(Vector(-6.7, 3.1, 0), Vector(-3.7, 0, 0)), False)
sketch4.addGeometry(Part.LineSegment(Vector(-3.7, 0, 0), Vector(-3.7, 3.1, 0)), False)
sketch4.addConstraint(Sketcher.Constraint("Coincident", 0, 2, 1, 1))
sketch4.addConstraint(Sketcher.Constraint("Coincident", 1, 2, 2, 1))
sketch4.addConstraint(Sketcher.Constraint("Coincident", 2, 2, 0, 1))
sketch4.addConstraint(Sketcher.Constraint("PointOnObject", 1, 2, -1))
sketch4.addConstraint(Sketcher.Constraint("Distance", 0, 2.974279))
sketch4.addConstraint(Sketcher.Constraint("Distance", 2, 3.089609))
sketch4.addConstraint(Sketcher.Constraint("DistanceX", 2, 2, -1, 1, 3.716471))
sketch4.addConstraint(Sketcher.Constraint("DistanceY", 0, 2, 2, 2, 0.008831))
sketch4.addConstraint(Sketcher.Constraint("DistanceX", 2, 2, 1, 2, 0.005749))
pocket2 = body.newObject("PartDesign::Pocket", "Pocket001")
pocket2.Profile = sketch4
pocket2.Length = 20
pocket2.Midplane = True

doc.recompute()
